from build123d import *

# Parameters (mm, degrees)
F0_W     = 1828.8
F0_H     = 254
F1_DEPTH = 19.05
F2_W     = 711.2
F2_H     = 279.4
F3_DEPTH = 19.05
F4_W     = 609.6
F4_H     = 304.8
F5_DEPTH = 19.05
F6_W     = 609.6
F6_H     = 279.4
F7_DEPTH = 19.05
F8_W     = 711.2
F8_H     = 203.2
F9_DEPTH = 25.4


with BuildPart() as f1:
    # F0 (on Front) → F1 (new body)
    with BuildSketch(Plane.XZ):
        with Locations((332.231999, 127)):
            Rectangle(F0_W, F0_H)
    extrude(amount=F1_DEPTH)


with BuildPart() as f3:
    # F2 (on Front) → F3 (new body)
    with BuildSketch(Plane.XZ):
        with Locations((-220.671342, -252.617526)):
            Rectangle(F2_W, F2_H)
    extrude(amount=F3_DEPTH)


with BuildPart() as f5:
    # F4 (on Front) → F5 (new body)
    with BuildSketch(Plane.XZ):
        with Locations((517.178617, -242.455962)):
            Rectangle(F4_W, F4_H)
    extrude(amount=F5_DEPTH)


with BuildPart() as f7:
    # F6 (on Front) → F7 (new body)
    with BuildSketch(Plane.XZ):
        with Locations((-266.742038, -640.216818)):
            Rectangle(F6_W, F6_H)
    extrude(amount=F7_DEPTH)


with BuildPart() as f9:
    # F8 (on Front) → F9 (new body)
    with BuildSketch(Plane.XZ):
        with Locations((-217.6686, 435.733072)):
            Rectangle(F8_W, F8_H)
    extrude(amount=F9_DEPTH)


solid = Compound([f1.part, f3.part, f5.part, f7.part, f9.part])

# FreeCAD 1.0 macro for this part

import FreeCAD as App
import Part
import Sketcher
Q = App.Units.Quantity


def add_polygon(sketch, points):
    """Adds a closed chain of lines whose ends are joined by coincident constraints."""
    first, n = sketch.GeometryCount, len(points)
    for a, b in zip(points, points[1:] + points[:1]):
        sketch.addGeometry(Part.LineSegment(App.Vector(*a, 0), App.Vector(*b, 0)), False)
    for i in range(n):
        sketch.addConstraint(Sketcher.Constraint("Coincident", first + i, 2, first + (i + 1) % n, 1))

doc = App.newDocument("Part")
body = doc.addObject("PartDesign::Body", "Body")

sketch1 = body.newObject("Sketcher::SketchObject", "Sketch")
sketch1.AttachmentSupport = (doc.getObject("XZ_Plane"), [""])
sketch1.MapMode = "FlatFace"
add_polygon(sketch1, [(-582, 254), (-582, 0), (1247, 0), (1247, 254)])
sketch1.addConstraint([
    Sketcher.Constraint("Vertical", 0),
    Sketcher.Constraint("Horizontal", 1),
    Sketcher.Constraint("Vertical", 2),
    Sketcher.Constraint("Horizontal", 3),
    Sketcher.Constraint("PointOnObject", 0, 2, -1),
    Sketcher.Constraint("DistanceX", 1, 1, 1, 2, Q("72 in")),
    Sketcher.Constraint("DistanceY", 0, 2, 0, 1, Q("10 in")),
    Sketcher.Constraint("DistanceX", 0, 2, -1, 1, Q("22.92 in")),
])
pad1 = body.newObject("PartDesign::Pad", "Pad")
pad1.Profile = sketch1
pad1.Length = Q("0.75 in")
body2 = doc.addObject("PartDesign::Body", "Body001")

sketch2 = body2.newObject("Sketcher::SketchObject", "Sketch001")
sketch2.AttachmentSupport = (doc.getObject("XZ_Plane001"), [""])
sketch2.MapMode = "FlatFace"
add_polygon(sketch2, [(-576, -113), (-576, -392), (135, -392), (135, -113)])
sketch2.addConstraint([
    Sketcher.Constraint("Vertical", 0),
    Sketcher.Constraint("Horizontal", 1),
    Sketcher.Constraint("Vertical", 2),
    Sketcher.Constraint("Horizontal", 3),
    Sketcher.Constraint("DistanceX", 1, 1, 1, 2, Q("28 in")),
    Sketcher.Constraint("DistanceY", 0, 2, 0, 1, Q("11 in")),
    Sketcher.Constraint("DistanceX", 0, 2, -1, 1, 576.271342),
    Sketcher.Constraint("DistanceY", 0, 2, -1, 1, 392.317526),
])
pad2 = body2.newObject("PartDesign::Pad", "Pad001")
pad2.Profile = sketch2
pad2.Length = Q("0.75 in")
body3 = doc.addObject("PartDesign::Body", "Body002")

sketch3 = body3.newObject("Sketcher::SketchObject", "Sketch002")
sketch3.AttachmentSupport = (doc.getObject("XZ_Plane002"), [""])
sketch3.MapMode = "FlatFace"
add_polygon(sketch3, [(212, -90), (212, -395), (822, -395), (822, -90)])
sketch3.addConstraint([
    Sketcher.Constraint("Vertical", 0),
    Sketcher.Constraint("Horizontal", 1),
    Sketcher.Constraint("Vertical", 2),
    Sketcher.Constraint("Horizontal", 3),
    Sketcher.Constraint("DistanceX", 1, 1, 1, 2, Q("24 in")),
    Sketcher.Constraint("DistanceY", 0, 2, 0, 1, Q("12 in")),
    Sketcher.Constraint("DistanceY", 0, 2, -1, 1, 394.855962),
    Sketcher.Constraint("DistanceX", -1, 1, 0, 2, 212.378617),
])
pad3 = body3.newObject("PartDesign::Pad", "Pad002")
pad3.Profile = sketch3
pad3.Length = Q("0.75 in")
body4 = doc.addObject("PartDesign::Body", "Body003")

sketch4 = body4.newObject("Sketcher::SketchObject", "Sketch003")
sketch4.AttachmentSupport = (doc.getObject("XZ_Plane003"), [""])
sketch4.MapMode = "FlatFace"
add_polygon(sketch4, [(-572, -501), (-572, -780), (38, -780), (38, -501)])
sketch4.addConstraint([
    Sketcher.Constraint("Vertical", 0),
    Sketcher.Constraint("Horizontal", 1),
    Sketcher.Constraint("Vertical", 2),
    Sketcher.Constraint("Horizontal", 3),
    Sketcher.Constraint("DistanceX", 1, 1, 1, 2, Q("24 in")),
    Sketcher.Constraint("DistanceY", 0, 2, 0, 1, Q("11 in")),
    Sketcher.Constraint("DistanceX", 0, 2, -1, 1, 571.542038),
    Sketcher.Constraint("DistanceY", 0, 2, -1, 1, 779.916818),
])
pad4 = body4.newObject("PartDesign::Pad", "Pad003")
pad4.Profile = sketch4
pad4.Length = Q("0.75 in")
body5 = doc.addObject("PartDesign::Body", "Body004")

sketch5 = body5.newObject("Sketcher::SketchObject", "Sketch004")
sketch5.AttachmentSupport = (doc.getObject("XZ_Plane004"), [""])
sketch5.MapMode = "FlatFace"
add_polygon(sketch5, [(-573, 537), (-573, 334), (138, 334), (138, 537)])
sketch5.addConstraint([
    Sketcher.Constraint("Vertical", 0),
    Sketcher.Constraint("Horizontal", 1),
    Sketcher.Constraint("Vertical", 2),
    Sketcher.Constraint("Horizontal", 3),
    Sketcher.Constraint("DistanceX", 1, 1, 1, 2, Q("28 in")),
    Sketcher.Constraint("DistanceY", 0, 2, 0, 1, Q("8 in")),
    Sketcher.Constraint("DistanceX", 0, 2, -1, 1, 573.2686),
    Sketcher.Constraint("DistanceY", -1, 1, 2, 2, 537.333072),
])
pad5 = body5.newObject("PartDesign::Pad", "Pad004")
pad5.Profile = sketch5
pad5.Length = Q("1 in")

doc.recompute()
